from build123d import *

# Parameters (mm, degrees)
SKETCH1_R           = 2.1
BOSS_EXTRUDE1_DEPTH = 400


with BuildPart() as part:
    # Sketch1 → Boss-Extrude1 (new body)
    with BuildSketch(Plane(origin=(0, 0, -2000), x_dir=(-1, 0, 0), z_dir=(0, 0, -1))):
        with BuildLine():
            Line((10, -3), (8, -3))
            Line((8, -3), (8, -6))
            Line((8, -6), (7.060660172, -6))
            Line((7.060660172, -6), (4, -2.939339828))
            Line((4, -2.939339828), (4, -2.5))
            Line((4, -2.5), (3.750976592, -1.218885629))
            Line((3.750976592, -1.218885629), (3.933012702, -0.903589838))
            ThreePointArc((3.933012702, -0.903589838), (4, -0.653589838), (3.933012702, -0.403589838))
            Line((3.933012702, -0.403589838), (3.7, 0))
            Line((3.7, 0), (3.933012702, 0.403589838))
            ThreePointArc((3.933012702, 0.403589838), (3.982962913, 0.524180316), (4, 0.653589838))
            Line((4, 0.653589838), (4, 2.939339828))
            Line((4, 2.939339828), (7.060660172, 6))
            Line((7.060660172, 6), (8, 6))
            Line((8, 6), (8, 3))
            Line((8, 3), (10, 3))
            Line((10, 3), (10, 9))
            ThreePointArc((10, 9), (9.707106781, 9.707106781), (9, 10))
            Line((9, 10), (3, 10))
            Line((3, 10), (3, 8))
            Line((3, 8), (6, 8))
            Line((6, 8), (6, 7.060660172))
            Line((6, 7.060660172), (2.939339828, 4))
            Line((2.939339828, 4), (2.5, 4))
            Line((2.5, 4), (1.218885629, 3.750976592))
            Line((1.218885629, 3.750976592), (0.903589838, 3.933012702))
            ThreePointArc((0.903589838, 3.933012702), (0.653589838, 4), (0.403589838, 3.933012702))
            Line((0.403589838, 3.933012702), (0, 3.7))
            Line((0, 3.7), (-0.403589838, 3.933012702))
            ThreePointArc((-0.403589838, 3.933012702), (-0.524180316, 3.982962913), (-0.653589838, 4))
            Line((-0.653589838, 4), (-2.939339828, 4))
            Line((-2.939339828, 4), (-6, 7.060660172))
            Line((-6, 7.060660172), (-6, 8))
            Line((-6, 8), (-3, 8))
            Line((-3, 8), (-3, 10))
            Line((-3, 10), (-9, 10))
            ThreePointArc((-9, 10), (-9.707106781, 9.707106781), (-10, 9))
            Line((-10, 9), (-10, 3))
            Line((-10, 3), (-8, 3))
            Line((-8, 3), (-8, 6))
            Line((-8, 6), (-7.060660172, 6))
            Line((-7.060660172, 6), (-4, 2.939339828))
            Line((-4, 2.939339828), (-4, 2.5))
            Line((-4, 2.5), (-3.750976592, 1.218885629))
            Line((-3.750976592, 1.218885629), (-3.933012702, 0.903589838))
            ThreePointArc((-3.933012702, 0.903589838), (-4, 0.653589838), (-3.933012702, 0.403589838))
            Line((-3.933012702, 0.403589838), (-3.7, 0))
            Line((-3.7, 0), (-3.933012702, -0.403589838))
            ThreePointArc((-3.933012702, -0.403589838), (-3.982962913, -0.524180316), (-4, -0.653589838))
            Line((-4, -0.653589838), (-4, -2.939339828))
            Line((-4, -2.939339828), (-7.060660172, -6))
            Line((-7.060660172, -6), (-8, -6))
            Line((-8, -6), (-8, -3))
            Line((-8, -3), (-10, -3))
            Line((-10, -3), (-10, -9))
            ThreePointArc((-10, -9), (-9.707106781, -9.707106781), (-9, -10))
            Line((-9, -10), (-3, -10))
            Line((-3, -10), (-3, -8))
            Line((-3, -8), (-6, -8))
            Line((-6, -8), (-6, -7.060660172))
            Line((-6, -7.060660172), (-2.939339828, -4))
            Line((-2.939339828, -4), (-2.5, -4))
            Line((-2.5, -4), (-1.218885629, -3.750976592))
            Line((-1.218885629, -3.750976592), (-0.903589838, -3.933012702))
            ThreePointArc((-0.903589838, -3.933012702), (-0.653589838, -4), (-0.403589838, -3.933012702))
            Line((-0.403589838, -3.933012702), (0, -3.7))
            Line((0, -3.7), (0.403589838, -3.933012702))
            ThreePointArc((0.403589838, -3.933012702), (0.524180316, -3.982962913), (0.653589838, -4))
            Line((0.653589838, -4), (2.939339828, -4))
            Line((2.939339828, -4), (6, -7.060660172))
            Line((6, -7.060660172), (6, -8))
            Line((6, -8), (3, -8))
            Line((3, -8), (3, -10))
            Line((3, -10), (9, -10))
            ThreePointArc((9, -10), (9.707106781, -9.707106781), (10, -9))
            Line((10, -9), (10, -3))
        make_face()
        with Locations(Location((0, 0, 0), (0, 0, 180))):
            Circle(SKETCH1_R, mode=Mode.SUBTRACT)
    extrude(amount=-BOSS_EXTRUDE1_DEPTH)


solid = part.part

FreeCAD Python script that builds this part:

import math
import FreeCAD as App
import Part
import Sketcher
Q = App.Units.Quantity

doc = App.newDocument("Part")
body = doc.addObject("PartDesign::Body", "Body")

# Sketch on XY plane
sketch1 = doc.addObject("Sketcher::SketchObject", "Sketch")
body.addObject(sketch1)
sketch1.AttachmentSupport = (doc.XY_Plane, [""])
sketch1.MapMode = "FlatFace"
sketch1.AttachmentOffset = App.Placement(App.Vector(0, 0, -2000), App.Rotation())
sketch1.addGeometry([
    Part.LineSegment(App.Vector(-10, -3, 0), App.Vector(-8, -3, 0)),  # 0
    Part.LineSegment(App.Vector(-8, -3, 0), App.Vector(-8, -6, 0)),  # 1
    Part.LineSegment(App.Vector(-8, -6, 0), App.Vector(-7.06, -6, 0)),  # 2
    Part.LineSegment(App.Vector(-7.06, -6, 0), App.Vector(-4, -2.94, 0)),  # 3
    Part.LineSegment(App.Vector(-4, -2.94, 0), App.Vector(-4, -2.5, 0)),  # 4
    Part.LineSegment(App.Vector(-4, -2.5, 0), App.Vector(-3.75, -1.22, 0)),  # 5
    Part.LineSegment(App.Vector(-3.75, -1.22, 0), App.Vector(-3.93, -0.9, 0)),  # 6
    Part.ArcOfCircle(Part.Circle(App.Vector(-3.5, -0.65, 0), App.Vector(0, 0, 1), 0.5), math.radians(150), math.radians(210)),  # 7
    Part.LineSegment(App.Vector(-3.93, -0.4, 0), App.Vector(-3.7, 0, 0)),  # 8
    Part.LineSegment(App.Vector(-3.7, 0, 0), App.Vector(-3.93, 0.4, 0)),  # 9
    Part.ArcOfCircle(Part.Circle(App.Vector(-3.5, 0.65, 0), App.Vector(0, 0, 1), 0.5), math.radians(-180), math.radians(-150)),  # 10
    Part.LineSegment(App.Vector(-4, 0.65, 0), App.Vector(-4, 2.94, 0)),  # 11
    Part.LineSegment(App.Vector(-4, 2.94, 0), App.Vector(-7.06, 6, 0)),  # 12
    Part.LineSegment(App.Vector(-7.06, 6, 0), App.Vector(-8, 6, 0)),  # 13
    Part.LineSegment(App.Vector(-8, 6, 0), App.Vector(-8, 3, 0)),  # 14
    Part.LineSegment(App.Vector(-8, 3, 0), App.Vector(-10, 3, 0)),  # 15
    Part.LineSegment(App.Vector(-10, 3, 0), App.Vector(-10, 9, 0)),  # 16
    Part.ArcOfCircle(Part.Circle(App.Vector(-9, 9, 0), App.Vector(0, 0, 1), 1), math.radians(90), math.radians(180)),  # 17
    Part.LineSegment(App.Vector(-9, 10, 0), App.Vector(-3, 10, 0)),  # 18
    Part.LineSegment(App.Vector(-3, 10, 0), App.Vector(-3, 8, 0)),  # 19
    Part.LineSegment(App.Vector(-3, 8, 0), App.Vector(-6, 8, 0)),  # 20
    Part.LineSegment(App.Vector(-6, 8, 0), App.Vector(-6, 7.06, 0)),  # 21
    Part.LineSegment(App.Vector(-6, 7.06, 0), App.Vector(-2.94, 4, 0)),  # 22
    Part.LineSegment(App.Vector(-2.94, 4, 0), App.Vector(-2.5, 4, 0)),  # 23
    Part.LineSegment(App.Vector(-2.5, 4, 0), App.Vector(-1.22, 3.75, 0)),  # 24
    Part.LineSegment(App.Vector(-1.22, 3.75, 0), App.Vector(-0.9, 3.93, 0)),  # 25
    Part.ArcOfCircle(Part.Circle(App.Vector(-0.65, 3.5, 0), App.Vector(0, 0, 1), 0.5), math.radians(60), math.radians(120)),  # 26
    Part.LineSegment(App.Vector(-0.4, 3.93, 0), App.Vector(0, 3.7, 0)),  # 27
    Part.LineSegment(App.Vector(0, 3.7, 0), App.Vector(0.4, 3.93, 0)),  # 28
    Part.ArcOfCircle(Part.Circle(App.Vector(0.65, 3.5, 0), App.Vector(0, 0, 1), 0.5), math.radians(90), math.radians(120)),  # 29
    Part.LineSegment(App.Vector(0.65, 4, 0), App.Vector(2.94, 4, 0)),  # 30
    Part.LineSegment(App.Vector(2.94, 4, 0), App.Vector(6, 7.06, 0)),  # 31
    Part.LineSegment(App.Vector(6, 7.06, 0), App.Vector(6, 8, 0)),  # 32
    Part.LineSegment(App.Vector(6, 8, 0), App.Vector(3, 8, 0)),  # 33
    Part.LineSegment(App.Vector(3, 8, 0), App.Vector(3, 10, 0)),  # 34
    Part.LineSegment(App.Vector(3, 10, 0), App.Vector(9, 10, 0)),  # 35
    Part.ArcOfCircle(Part.Circle(App.Vector(9, 9, 0), App.Vector(0, 0, 1), 1), math.radians(0), math.radians(90)),  # 36
    Part.LineSegment(App.Vector(10, 9, 0), App.Vector(10, 3, 0)),  # 37
    Part.LineSegment(App.Vector(10, 3, 0), App.Vector(8, 3, 0)),  # 38
    Part.LineSegment(App.Vector(8, 3, 0), App.Vector(8, 6, 0)),  # 39
    Part.LineSegment(App.Vector(8, 6, 0), App.Vector(7.06, 6, 0)),  # 40
    Part.LineSegment(App.Vector(7.06, 6, 0), App.Vector(4, 2.94, 0)),  # 41
    Part.LineSegment(App.Vector(4, 2.94, 0), App.Vector(4, 2.5, 0)),  # 42
    Part.LineSegment(App.Vector(4, 2.5, 0), App.Vector(3.75, 1.22, 0)),  # 43
    Part.LineSegment(App.Vector(3.75, 1.22, 0), App.Vector(3.93, 0.9, 0)),  # 44
    Part.ArcOfCircle(Part.Circle(App.Vector(3.5, 0.65, 0), App.Vector(0, 0, 1), 0.5), math.radians(-30), math.radians(30)),  # 45
    Part.LineSegment(App.Vector(3.93, 0.4, 0), App.Vector(3.7, 0, 0)),  # 46
    Part.LineSegment(App.Vector(3.7, 0, 0), App.Vector(3.93, -0.4, 0)),  # 47
    Part.ArcOfCircle(Part.Circle(App.Vector(3.5, -0.65, 0), App.Vector(0, 0, 1), 0.5), math.radians(0), math.radians(30)),  # 48
    Part.LineSegment(App.Vector(4, -0.65, 0), App.Vector(4, -2.94, 0)),  # 49
    Part.LineSegment(App.Vector(4, -2.94, 0), App.Vector(7.06, -6, 0)),  # 50
    Part.LineSegment(App.Vector(7.06, -6, 0), App.Vector(8, -6, 0)),  # 51
    Part.LineSegment(App.Vector(8, -6, 0), App.Vector(8, -3, 0)),  # 52
    Part.LineSegment(App.Vector(8, -3, 0), App.Vector(10, -3, 0)),  # 53
    Part.LineSegment(App.Vector(10, -3, 0), App.Vector(10, -9, 0)),  # 54
    Part.ArcOfCircle(Part.Circle(App.Vector(9, -9, 0), App.Vector(0, 0, 1), 1), math.radians(-90), math.radians(0)),  # 55
    Part.LineSegment(App.Vector(9, -10, 0), App.Vector(3, -10, 0)),  # 56
    Part.LineSegment(App.Vector(3, -10, 0), App.Vector(3, -8, 0)),  # 57
    Part.LineSegment(App.Vector(3, -8, 0), App.Vector(6, -8, 0)),  # 58
    Part.LineSegment(App.Vector(6, -8, 0), App.Vector(6, -7.06, 0)),  # 59
    Part.LineSegment(App.Vector(6, -7.06, 0), App.Vector(2.94, -4, 0)),  # 60
    Part.LineSegment(App.Vector(2.94, -4, 0), App.Vector(2.5, -4, 0)),  # 61
    Part.LineSegment(App.Vector(2.5, -4, 0), App.Vector(1.22, -3.75, 0)),  # 62
    Part.LineSegment(App.Vector(1.22, -3.75, 0), App.Vector(0.9, -3.93, 0)),  # 63
    Part.ArcOfCircle(Part.Circle(App.Vector(0.65, -3.5, 0), App.Vector(0, 0, 1), 0.5), math.radians(-120), math.radians(-60)),  # 64
    Part.LineSegment(App.Vector(0.4, -3.93, 0), App.Vector(0, -3.7, 0)),  # 65
    Part.LineSegment(App.Vector(0, -3.7, 0), App.Vector(-0.4, -3.93, 0)),  # 66
    Part.ArcOfCircle(Part.Circle(App.Vector(-0.65, -3.5, 0), App.Vector(0, 0, 1), 0.5), math.radians(-90), math.radians(-60)),  # 67
    Part.LineSegment(App.Vector(-0.65, -4, 0), App.Vector(-2.94, -4, 0)),  # 68
    Part.LineSegment(App.Vector(-2.94, -4, 0), App.Vector(-6, -7.06, 0)),  # 69
    Part.LineSegment(App.Vector(-6, -7.06, 0), App.Vector(-6, -8, 0)),  # 70
    Part.LineSegment(App.Vector(-6, -8, 0), App.Vector(-3, -8, 0)),  # 71
    Part.LineSegment(App.Vector(-3, -8, 0), App.Vector(-3, -10, 0)),  # 72
    Part.LineSegment(App.Vector(-3, -10, 0), App.Vector(-9, -10, 0)),  # 73
    Part.ArcOfCircle(Part.Circle(App.Vector(-9, -9, 0), App.Vector(0, 0, 1), 1), math.radians(-180), math.radians(-90)),  # 74
    Part.LineSegment(App.Vector(-10, -9, 0), App.Vector(-10, -3, 0)),  # 75
    Part.Circle(App.Vector(0, 0, 0), App.Vector(0, 0, 1), 2.1),  # 76
], False)
sketch1.addConstraint([
    Sketcher.Constraint("Coincident", 0, 2, 1, 1),
    Sketcher.Constraint("Coincident", 1, 2, 2, 1),
    Sketcher.Constraint("Coincident", 2, 2, 3, 1),
    Sketcher.Constraint("Coincident", 3, 2, 4, 1),
    Sketcher.Constraint("Coincident", 4, 2, 5, 1),
    Sketcher.Constraint("Coincident", 5, 2, 6, 1),
    Sketcher.Constraint("Tangent", 6, 2, 7, 2),
    Sketcher.Constraint("Tangent", 7, 1, 8, 1),
    Sketcher.Constraint("Coincident", 8, 2, 9, 1),
    Sketcher.Constraint("Tangent", 9, 2, 10, 2),
    Sketcher.Constraint("Tangent", 10, 1, 11, 1),
    Sketcher.Constraint("Coincident", 11, 2, 12, 1),
    Sketcher.Constraint("Coincident", 12, 2, 13, 1),
    Sketcher.Constraint("Coincident", 13, 2, 14, 1),
    Sketcher.Constraint("Coincident", 14, 2, 15, 1),
    Sketcher.Constraint("Coincident", 15, 2, 16, 1),
    Sketcher.Constraint("Tangent", 16, 2, 17, 2),
    Sketcher.Constraint("Tangent", 17, 1, 18, 1),
    Sketcher.Constraint("Coincident", 18, 2, 19, 1),
    Sketcher.Constraint("Coincident", 19, 2, 20, 1),
    Sketcher.Constraint("Coincident", 20, 2, 21, 1),
    Sketcher.Constraint("Coincident", 21, 2, 22, 1),
    Sketcher.Constraint("Coincident", 22, 2, 23, 1),
    Sketcher.Constraint("Coincident", 23, 2, 24, 1),
    Sketcher.Constraint("Coincident", 24, 2, 25, 1),
    Sketcher.Constraint("Tangent", 25, 2, 26, 2),
    Sketcher.Constraint("Tangent", 26, 1, 27, 1),
    Sketcher.Constraint("Coincident", 27, 2, 28, 1),
    Sketcher.Constraint("Tangent", 28, 2, 29, 2),
    Sketcher.Constraint("Tangent", 29, 1, 30, 1),
    Sketcher.Constraint("Coincident", 30, 2, 31, 1),
    Sketcher.Constraint("Coincident", 31, 2, 32, 1),
    Sketcher.Constraint("Coincident", 32, 2, 33, 1),
    Sketcher.Constraint("Coincident", 33, 2, 34, 1),
    Sketcher.Constraint("Coincident", 34, 2, 35, 1),
    Sketcher.Constraint("Tangent", 35, 2, 36, 2),
    Sketcher.Constraint("Tangent", 36, 1, 37, 1),
    Sketcher.Constraint("Coincident", 37, 2, 38, 1),
    Sketcher.Constraint("Coincident", 38, 2, 39, 1),
    Sketcher.Constraint("Coincident", 39, 2, 40, 1),
    Sketcher.Constraint("Coincident", 40, 2, 41, 1),
    Sketcher.Constraint("Coincident", 41, 2, 42, 1),
    Sketcher.Constraint("Coincident", 42, 2, 43, 1),
    Sketcher.Constraint("Coincident", 43, 2, 44, 1),
    Sketcher.Constraint("Tangent", 44, 2, 45, 2),
    Sketcher.Constraint("Tangent", 45, 1, 46, 1),
    Sketcher.Constraint("Coincident", 46, 2, 47, 1),
    Sketcher.Constraint("Tangent", 47, 2, 48, 2),
    Sketcher.Constraint("Tangent", 48, 1, 49, 1),
    Sketcher.Constraint("Coincident", 49, 2, 50, 1),
    Sketcher.Constraint("Coincident", 50, 2, 51, 1),
    Sketcher.Constraint("Coincident", 51, 2, 52, 1),
    Sketcher.Constraint("Coincident", 52, 2, 53, 1),
    Sketcher.Constraint("Coincident", 53, 2, 54, 1),
    Sketcher.Constraint("Tangent", 54, 2, 55, 2),
    Sketcher.Constraint("Tangent", 55, 1, 56, 1),
    Sketcher.Constraint("Coincident", 56, 2, 57, 1),
    Sketcher.Constraint("Coincident", 57, 2, 58, 1),
    Sketcher.Constraint("Coincident", 58, 2, 59, 1),
    Sketcher.Constraint("Coincident", 59, 2, 60, 1),
    Sketcher.Constraint("Coincident", 60, 2, 61, 1),
    Sketcher.Constraint("Coincident", 61, 2, 62, 1),
    Sketcher.Constraint("Coincident", 62, 2, 63, 1),
    Sketcher.Constraint("Tangent", 63, 2, 64, 2),
    Sketcher.Constraint("Tangent", 64, 1, 65, 1),
    Sketcher.Constraint("Coincident", 65, 2, 66, 1),
    Sketcher.Constraint("Tangent", 66, 2, 67, 2),
    Sketcher.Constraint("Tangent", 67, 1, 68, 1),
    Sketcher.Constraint("Coincident", 68, 2, 69, 1),
    Sketcher.Constraint("Coincident", 69, 2, 70, 1),
    Sketcher.Constraint("Coincident", 70, 2, 71, 1),
    Sketcher.Constraint("Coincident", 71, 2, 72, 1),
    Sketcher.Constraint("Coincident", 72, 2, 73, 1),
    Sketcher.Constraint("Tangent", 73, 2, 74, 2),
    Sketcher.Constraint("Tangent", 74, 1, 75, 1),
    Sketcher.Constraint("Coincident", 75, 2, 0, 1),
    Sketcher.Constraint("Horizontal", 0),
    Sketcher.Constraint("Vertical", 1),
    Sketcher.Constraint("Horizontal", 2),
    Sketcher.Constraint("Vertical", 4),
    Sketcher.Constraint("Vertical", 11),
    Sketcher.Constraint("Horizontal", 13),
    Sketcher.Constraint("Vertical", 14),
    Sketcher.Constraint("Horizontal", 15),
    Sketcher.Constraint("Vertical", 16),
    Sketcher.Constraint("Horizontal", 18),
    Sketcher.Constraint("Vertical", 19),
    Sketcher.Constraint("Horizontal", 20),
    Sketcher.Constraint("Vertical", 21),
    Sketcher.Constraint("Horizontal", 23),
    Sketcher.Constraint("Horizontal", 30),
    Sketcher.Constraint("Vertical", 32),
    Sketcher.Constraint("Horizontal", 33),
    Sketcher.Constraint("Vertical", 34),
    Sketcher.Constraint("Horizontal", 35),
    Sketcher.Constraint("Vertical", 37),
    Sketcher.Constraint("Horizontal", 38),
    Sketcher.Constraint("Vertical", 39),
    Sketcher.Constraint("Horizontal", 40),
    Sketcher.Constraint("Vertical", 42),
    Sketcher.Constraint("Vertical", 49),
    Sketcher.Constraint("Horizontal", 51),
    Sketcher.Constraint("Vertical", 52),
    Sketcher.Constraint("Horizontal", 53),
    Sketcher.Constraint("Vertical", 54),
    Sketcher.Constraint("Horizontal", 56),
    Sketcher.Constraint("Vertical", 57),
    Sketcher.Constraint("Horizontal", 58),
    Sketcher.Constraint("Vertical", 59),
    Sketcher.Constraint("Horizontal", 61),
    Sketcher.Constraint("Horizontal", 68),
    Sketcher.Constraint("Vertical", 70),
    Sketcher.Constraint("Horizontal", 71),
    Sketcher.Constraint("Vertical", 72),
    Sketcher.Constraint("Horizontal", 73),
    Sketcher.Constraint("Vertical", 75),
    Sketcher.Constraint("Coincident", 76, 3, -1, 1),
    Sketcher.Constraint("Equal", 7, 10),
    Sketcher.Constraint("Equal", 10, 26),
    Sketcher.Constraint("Equal", 26, 29),
    Sketcher.Constraint("Equal", 17, 36),
    Sketcher.Constraint("Equal", 29, 45),
    Sketcher.Constraint("Equal", 45, 48),
    Sketcher.Constraint("Equal", 36, 55),
    Sketcher.Constraint("Equal", 48, 64),
    Sketcher.Constraint("Equal", 64, 67),
    Sketcher.Constraint("Equal", 55, 74),
    Sketcher.Constraint("Symmetric", 7, 3, 45, 3, -1, 1),
    Sketcher.Constraint("Symmetric", 10, 3, 48, 3, -1, 1),
    Sketcher.Constraint("Symmetric", 17, 3, 55, 3, -1, 1),
    Sketcher.Constraint("Symmetric", 26, 3, 64, 3, -1, 1),
    Sketcher.Constraint("Symmetric", 29, 3, 67, 3, -1, 1),
    Sketcher.Constraint("Symmetric", 36, 3, 74, 3, -1, 1),
    Sketcher.Constraint("Symmetric", 0, 2, 38, 2, -1, 1),
    Sketcher.Constraint("Symmetric", 2, 2, 40, 2, -1, 1),
    Sketcher.Constraint("Symmetric", 3, 2, 41, 2, -1, 1),
    Sketcher.Constraint("Symmetric", 5, 2, 43, 2, -1, 1),
    Sketcher.Constraint("Symmetric", 8, 2, 46, 2, -1, 1),
    Sketcher.Constraint("Symmetric", 12, 2, 50, 2, -1, 1),
    Sketcher.Constraint("Symmetric", 14, 2, 52, 2, -1, 1),
    Sketcher.Constraint("Symmetric", 19, 2, 57, 2, -1, 1),
    Sketcher.Constraint("Symmetric", 21, 2, 59, 2, -1, 1),
    Sketcher.Constraint("Symmetric", 22, 2, 60, 2, -1, 1),
    Sketcher.Constraint("Symmetric", 24, 2, 62, 2, -1, 1),
    Sketcher.Constraint("Symmetric", 27, 2, 65, 2, -1, 1),
    Sketcher.Constraint("Symmetric", 31, 2, 69, 2, -1, 1),
    Sketcher.Constraint("Symmetric", 33, 2, 71, 2, -1, 1),
    Sketcher.Constraint("Symmetric", 26, 3, 29, 3, -2),
    Sketcher.Constraint("Symmetric", 17, 3, 36, 3, -2),
    Sketcher.Constraint("Symmetric", 10, 3, 45, 3, -2),
    Sketcher.Constraint("Symmetric", 22, 2, 30, 2, -2),
    Sketcher.Constraint("Symmetric", 21, 2, 31, 2, -2),
    Sketcher.Constraint("Symmetric", 19, 2, 33, 2, -2),
    Sketcher.Constraint("Symmetric", 14, 2, 38, 2, -2),
    Sketcher.Constraint("Symmetric", 12, 2, 40, 2, -2),
    Sketcher.Constraint("Symmetric", 11, 2, 41, 2, -2),
    Sketcher.Constraint("PointOnObject", 8, 2, -1),
    Sketcher.Constraint("PointOnObject", 27, 2, -2),
    Sketcher.Constraint("Parallel", 6, 9),
    Sketcher.Constraint("Perpendicular", 3, 12),
    Sketcher.Constraint("Parallel", 12, 22),
    Sketcher.Constraint("Perpendicular", 5, 24),
    Sketcher.Constraint("Perpendicular", 9, 25),
    Sketcher.Constraint("Perpendicular", 8, 27),
    Sketcher.Constraint("Perpendicular", 24, 43),
    Sketcher.Constraint("Perpendicular", 41, 50),
    Sketcher.Constraint("Perpendicular", 43, 62),
    Sketcher.Constraint("Perpendicular", 60, 69),
    Sketcher.Constraint("Equal", 71, 1),
    Sketcher.Constraint("Equal", 61, 4),
    Sketcher.Constraint("Equal", 68, 11),
    Sketcher.Constraint("Equal", 73, 16),
    Sketcher.Constraint("Equal", 53, 19),
    Sketcher.Constraint("Equal", 51, 21),
    Sketcher.Constraint("Equal", 12, 22),
    Sketcher.Constraint("Equal", 9, 27),
    Sketcher.Constraint("Radius", 17, 1.0),
    Sketcher.Constraint("Diameter", 76, 4.2),
    Sketcher.Constraint("Radius", 7, 0.5),
    Sketcher.Constraint("DistanceX", 0, 1, 0, 2, 2.0),
    Sketcher.Constraint("DistanceX", 18, 1, 18, 2, 6.0),
    Sketcher.Constraint("DistanceX", 20, 2, 20, 1, 3.0),
    Sketcher.Constraint("Angle", 5, Q("79 deg")),
    Sketcher.Constraint("Angle", 6, Q("120 deg")),
    Sketcher.Constraint("DistanceX", 17, 3, -1, 1, 9.0),
    Sketcher.Constraint("DistanceX", 3, 2, -1, 1, 4.0),
    Sketcher.Constraint("DistanceY", 4, 2, -1, 1, 2.5),
    Sketcher.Constraint("DistanceX", 8, 2, -1, 1, 3.7),
    Sketcher.Constraint("DistanceX", 2, 1, 2, 2, 0.93934),
])
pad1 = doc.addObject("PartDesign::Pad", "Pad")
body.addObject(pad1)
pad1.Profile = sketch1
pad1.Length = 400

doc.recompute()
